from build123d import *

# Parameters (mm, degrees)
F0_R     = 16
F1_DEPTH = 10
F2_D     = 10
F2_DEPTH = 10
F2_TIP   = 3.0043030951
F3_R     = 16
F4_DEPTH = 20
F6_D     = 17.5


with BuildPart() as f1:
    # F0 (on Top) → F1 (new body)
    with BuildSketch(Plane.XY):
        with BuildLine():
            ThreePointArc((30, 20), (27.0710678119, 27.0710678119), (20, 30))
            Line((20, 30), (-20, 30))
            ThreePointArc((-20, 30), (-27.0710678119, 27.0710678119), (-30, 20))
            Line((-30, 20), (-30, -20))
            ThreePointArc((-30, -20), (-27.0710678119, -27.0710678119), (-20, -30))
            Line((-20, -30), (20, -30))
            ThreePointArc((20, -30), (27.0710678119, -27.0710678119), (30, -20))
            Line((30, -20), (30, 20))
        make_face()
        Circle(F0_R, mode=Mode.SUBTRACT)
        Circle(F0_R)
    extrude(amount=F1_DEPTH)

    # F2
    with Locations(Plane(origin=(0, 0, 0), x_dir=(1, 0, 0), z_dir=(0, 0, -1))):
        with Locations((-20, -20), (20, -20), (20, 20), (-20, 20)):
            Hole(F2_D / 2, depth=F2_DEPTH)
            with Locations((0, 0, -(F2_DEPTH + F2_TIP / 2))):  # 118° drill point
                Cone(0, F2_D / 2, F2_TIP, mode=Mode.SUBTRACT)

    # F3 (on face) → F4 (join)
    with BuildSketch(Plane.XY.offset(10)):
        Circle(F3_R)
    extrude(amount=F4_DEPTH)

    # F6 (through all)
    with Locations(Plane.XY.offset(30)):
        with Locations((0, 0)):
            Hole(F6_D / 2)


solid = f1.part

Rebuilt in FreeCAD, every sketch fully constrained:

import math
import FreeCAD as App
import Part
import Sketcher

V = App.Vector
Q = App.Units.Quantity

doc = App.newDocument("Part")
body = doc.addObject("PartDesign::Body", "Body")

# Sketch on XY plane
sketch1 = doc.addObject("Sketcher::SketchObject", "Sketch")
body.addObject(sketch1)
sketch1.AttachmentSupport = (doc.XY_Plane, [""])
sketch1.MapMode = "FlatFace"
sketch1.addGeometry([
    Part.ArcOfCircle(Part.Circle(V(20, 20, 0), V(0, 0, 1), 10), math.radians(0), math.radians(90)),  # 0
    Part.LineSegment(V(20, 30, 0), V(-20, 30, 0)),  # 1
    Part.ArcOfCircle(Part.Circle(V(-20, 20, 0), V(0, 0, 1), 10), math.radians(90), math.radians(180)),  # 2
    Part.LineSegment(V(-30, 20, 0), V(-30, -20, 0)),  # 3
    Part.ArcOfCircle(Part.Circle(V(-20, -20, 0), V(0, 0, 1), 10), math.radians(180), math.radians(270)),  # 4
    Part.LineSegment(V(-20, -30, 0), V(20, -30, 0)),  # 5
    Part.ArcOfCircle(Part.Circle(V(20, -20, 0), V(0, 0, 1), 10), math.radians(-90), math.radians(0)),  # 6
    Part.LineSegment(V(30, -20, 0), V(30, 20, 0)),  # 7
], False)
sketch1.addConstraint([
    Sketcher.Constraint("Tangent", 0, 2, 1, 1),
    Sketcher.Constraint("Tangent", 1, 2, 2, 1),
    Sketcher.Constraint("Tangent", 2, 2, 3, 1),
    Sketcher.Constraint("Tangent", 3, 2, 4, 1),
    Sketcher.Constraint("Tangent", 4, 2, 5, 1),
    Sketcher.Constraint("Tangent", 5, 2, 6, 1),
    Sketcher.Constraint("Tangent", 6, 2, 7, 1),
    Sketcher.Constraint("Tangent", 7, 2, 0, 1),
    Sketcher.Constraint("Horizontal", 1),
    Sketcher.Constraint("Vertical", 3),
    Sketcher.Constraint("Horizontal", 5),
    Sketcher.Constraint("Vertical", 7),
    Sketcher.Constraint("Equal", 0, 2),
    Sketcher.Constraint("Equal", 2, 4),
    Sketcher.Constraint("Equal", 4, 6),
    Sketcher.Constraint("Symmetric", 0, 3, 4, 3, -1, 1),
    Sketcher.Constraint("Equal", 5, 3),
    Sketcher.Constraint("Radius", 0, Q("10 mm")),
    Sketcher.Constraint("DistanceX", 1, 2, 1, 1, Q("40 mm")),
])
pad1 = doc.addObject("PartDesign::Pad", "Pad")
body.addObject(pad1)
pad1.Profile = sketch1
pad1.Length = 10

# Sketch on XY plane
sketch2 = doc.addObject("Sketcher::SketchObject", "Sketch001")
body.addObject(sketch2)
sketch2.AttachmentSupport = (doc.XY_Plane, [""])
sketch2.MapMode = "FlatFace"
sketch2.addGeometry([
    Part.Circle(V(-20, 20, 0), V(0, 0, 1), 5),
    Part.Circle(V(20, 20, 0), V(0, 0, 1), 5),
    Part.Circle(V(20, -20, 0), V(0, 0, 1), 5),
    Part.Circle(V(-20, -20, 0), V(0, 0, 1), 5),
], False)
sketch2.addConstraint([
    Sketcher.Constraint("Equal", 0, 1),
    Sketcher.Constraint("Equal", 1, 2),
    Sketcher.Constraint("Equal", 2, 3),
    Sketcher.Constraint("Symmetric", 0, 3, 2, 3, -1, 1),
    Sketcher.Constraint("Symmetric", 1, 3, 3, 3, -1, 1),
    Sketcher.Constraint("Symmetric", 0, 3, 1, 3, -2),
    Sketcher.Constraint("Diameter", 0, Q("10 mm")),
    Sketcher.Constraint("DistanceX", 0, 3, -1, 1, Q("20 mm")),
    Sketcher.Constraint("DistanceY", -1, 1, 0, 3, Q("20 mm")),
])
doc.recompute()
hole = doc.addObject("PartDesign::Hole", "Hole")
body.addObject(hole)
hole.Profile = sketch2
hole.ThreadType = "None"
hole.Diameter = 10
hole.DepthType = "Dimension"
hole.Depth = 10
hole.DrillPoint = "Angled"
hole.DrillPointAngle = 118
hole.Reversed = True

# Sketch on XY plane
sketch3 = doc.addObject("Sketcher::SketchObject", "Sketch002")
body.addObject(sketch3)
sketch3.AttachmentSupport = (doc.XY_Plane, [""])
sketch3.MapMode = "FlatFace"
sketch3.AttachmentOffset = App.Placement(V(0, 0, 10), App.Rotation())
sketch3.addGeometry(Part.Circle(V(0, 0, 0), V(0, 0, 1), 16), False)
sketch3.addConstraint([
    Sketcher.Constraint("Coincident", 0, 3, -1, 1),
    Sketcher.Constraint("Diameter", 0, Q("32 mm")),
])
pad2 = doc.addObject("PartDesign::Pad", "Pad001")
body.addObject(pad2)
pad2.Profile = sketch3
pad2.Length = 20

# Sketch on XY plane
sketch4 = doc.addObject("Sketcher::SketchObject", "Sketch003")
body.addObject(sketch4)
sketch4.AttachmentSupport = (doc.XY_Plane, [""])
sketch4.MapMode = "FlatFace"
sketch4.AttachmentOffset = App.Placement(V(0, 0, 30), App.Rotation())
sketch4.addGeometry(Part.Circle(V(0, 0, 0), V(0, 0, 1), 8.75), False)
sketch4.addConstraint([
    Sketcher.Constraint("Coincident", 0, 3, -1, 1),
    Sketcher.Constraint("Diameter", 0, Q("17.5 mm")),
])
doc.recompute()
hole2 = doc.addObject("PartDesign::Hole", "Hole001")
body.addObject(hole2)
hole2.Profile = sketch4
hole2.ThreadType = "None"
hole2.Diameter = 17.5
hole2.DepthType = "ThroughAll"

doc.recompute()
